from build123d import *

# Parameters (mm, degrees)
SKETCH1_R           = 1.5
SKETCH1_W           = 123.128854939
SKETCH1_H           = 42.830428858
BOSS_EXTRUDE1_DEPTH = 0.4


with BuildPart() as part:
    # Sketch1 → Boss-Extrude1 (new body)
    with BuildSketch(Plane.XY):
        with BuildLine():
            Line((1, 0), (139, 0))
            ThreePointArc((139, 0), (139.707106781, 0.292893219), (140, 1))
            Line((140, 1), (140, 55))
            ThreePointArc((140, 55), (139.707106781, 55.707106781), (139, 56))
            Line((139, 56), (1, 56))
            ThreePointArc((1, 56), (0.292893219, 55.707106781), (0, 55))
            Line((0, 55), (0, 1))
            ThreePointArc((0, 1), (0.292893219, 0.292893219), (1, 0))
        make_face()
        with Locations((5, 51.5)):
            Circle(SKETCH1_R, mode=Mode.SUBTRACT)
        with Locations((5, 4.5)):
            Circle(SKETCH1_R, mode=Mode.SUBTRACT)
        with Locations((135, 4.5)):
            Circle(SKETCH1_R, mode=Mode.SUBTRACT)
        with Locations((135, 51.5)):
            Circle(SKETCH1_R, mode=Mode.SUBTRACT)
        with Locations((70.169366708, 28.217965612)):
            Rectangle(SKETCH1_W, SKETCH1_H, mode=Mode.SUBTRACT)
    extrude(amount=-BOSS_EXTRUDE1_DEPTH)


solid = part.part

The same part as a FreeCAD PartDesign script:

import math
import FreeCAD as App
import Part
import Sketcher
from FreeCAD import Vector


def add_polygon(sketch, points):
    """Adds a closed chain of lines whose ends are joined by coincident constraints."""
    first, n = sketch.GeometryCount, len(points)
    for a, b in zip(points, points[1:] + points[:1]):
        sketch.addGeometry(Part.LineSegment(App.Vector(*a, 0), App.Vector(*b, 0)), False)
    for i in range(n):
        sketch.addConstraint(Sketcher.Constraint("Coincident", first + i, 2, first + (i + 1) % n, 1))

doc = App.newDocument("Part")
body = doc.addObject("PartDesign::Body", "Body")

sketch1 = doc.addObject("Sketcher::SketchObject", "Sketch")
body.addObject(sketch1)
sketch1.AttachmentSupport = (doc.XY_Plane, [""])
sketch1.MapMode = "FlatFace"
sketch1.addGeometry(Part.LineSegment(Vector(1, 0, 0), Vector(139, 0, 0)), False)
sketch1.addGeometry(Part.ArcOfCircle(Part.Circle(Vector(139, 1, 0), Vector(0, 0, 1), 1), math.radians(-90), math.radians(0)), False)
sketch1.addGeometry(Part.LineSegment(Vector(140, 1, 0), Vector(140, 55, 0)), False)
sketch1.addGeometry(Part.ArcOfCircle(Part.Circle(Vector(139, 55, 0), Vector(0, 0, 1), 1), math.radians(0), math.radians(90)), False)
sketch1.addGeometry(Part.LineSegment(Vector(139, 56, 0), Vector(1, 56, 0)), False)
sketch1.addGeometry(Part.ArcOfCircle(Part.Circle(Vector(1, 55, 0), Vector(0, 0, 1), 1), math.radians(90), math.radians(180)), False)
sketch1.addGeometry(Part.LineSegment(Vector(0, 55, 0), Vector(0, 1, 0)), False)
sketch1.addGeometry(Part.ArcOfCircle(Part.Circle(Vector(1, 1, 0), Vector(0, 0, 1), 1), math.radians(-180), math.radians(-90)), False)
sketch1.addGeometry(Part.Circle(Vector(5, 4.5, 0), Vector(0, 0, 1), 1.5), False)
sketch1.addGeometry(Part.Circle(Vector(135, 4.5, 0), Vector(0, 0, 1), 1.5), False)
sketch1.addGeometry(Part.Circle(Vector(5, 51.5, 0), Vector(0, 0, 1), 1.5), False)
add_polygon(sketch1, [(131.7, 6.8), (8.6, 6.8), (8.6, 49.6), (131.7, 49.6)])
sketch1.addGeometry(Part.Circle(Vector(135, 51.5, 0), Vector(0, 0, 1), 1.5), False)
sketch1.addConstraint([
    Sketcher.Constraint("Tangent", 0, 2, 1, 1),
    Sketcher.Constraint("Tangent", 1, 2, 2, 1),
    Sketcher.Constraint("Tangent", 2, 2, 3, 1),
    Sketcher.Constraint("Tangent", 3, 2, 4, 1),
    Sketcher.Constraint("Tangent", 4, 2, 5, 1),
    Sketcher.Constraint("Tangent", 5, 2, 6, 1),
    Sketcher.Constraint("Tangent", 6, 2, 7, 1),
    Sketcher.Constraint("Tangent", 7, 2, 0, 1),
    Sketcher.Constraint("Horizontal", 0),
    Sketcher.Constraint("Vertical", 2),
    Sketcher.Constraint("Horizontal", 4),
    Sketcher.Constraint("Vertical", 6),
    Sketcher.Constraint("Horizontal", 11),
    Sketcher.Constraint("Vertical", 12),
    Sketcher.Constraint("Horizontal", 13),
    Sketcher.Constraint("Vertical", 14),
    Sketcher.Constraint("Equal", 1, 3),
    Sketcher.Constraint("Equal", 3, 5),
    Sketcher.Constraint("Equal", 5, 7),
    Sketcher.Constraint("Equal", 8, 9),
    Sketcher.Constraint("Equal", 9, 10),
    Sketcher.Constraint("Equal", 10, 15),
    Sketcher.Constraint("PointOnObject", 0, 2, -1),
    Sketcher.Constraint("PointOnObject", 5, 2, -2),
    Sketcher.Constraint("Horizontal", 8, 3, 9, 3),
    Sketcher.Constraint("Horizontal", 10, 3, 15, 3),
    Sketcher.Constraint("Vertical", 8, 3, 10, 3),
    Sketcher.Constraint("Vertical", 9, 3, 15, 3),
    Sketcher.Constraint("Diameter", 8, 3.0),
    Sketcher.Constraint("Radius", 1, 1.0),
    Sketcher.Constraint("DistanceX", 0, 1, 0, 2, 138.0),
    Sketcher.Constraint("DistanceY", 2, 1, 2, 2, 54.0),
    Sketcher.Constraint("DistanceX", -1, 1, 8, 3, 5.0),
    Sketcher.Constraint("DistanceX", -1, 1, 9, 3, 135.0),
    Sketcher.Constraint("DistanceY", 8, 3, 10, 3, 47.0),
    Sketcher.Constraint("DistanceY", -1, 1, 8, 3, 4.5),
    Sketcher.Constraint("DistanceY", 12, 1, 12, 2, 42.830429),
    Sketcher.Constraint("DistanceX", 11, 2, 11, 1, 123.128855),
    Sketcher.Constraint("DistanceX", -1, 1, 11, 2, 8.604939),
    Sketcher.Constraint("DistanceY", -1, 1, 11, 2, 6.802751),
])
pad1 = doc.addObject("PartDesign::Pad", "Pad")
body.addObject(pad1)
pad1.Profile = sketch1
pad1.Length = 0.4
pad1.Reversed = True

doc.recompute()
